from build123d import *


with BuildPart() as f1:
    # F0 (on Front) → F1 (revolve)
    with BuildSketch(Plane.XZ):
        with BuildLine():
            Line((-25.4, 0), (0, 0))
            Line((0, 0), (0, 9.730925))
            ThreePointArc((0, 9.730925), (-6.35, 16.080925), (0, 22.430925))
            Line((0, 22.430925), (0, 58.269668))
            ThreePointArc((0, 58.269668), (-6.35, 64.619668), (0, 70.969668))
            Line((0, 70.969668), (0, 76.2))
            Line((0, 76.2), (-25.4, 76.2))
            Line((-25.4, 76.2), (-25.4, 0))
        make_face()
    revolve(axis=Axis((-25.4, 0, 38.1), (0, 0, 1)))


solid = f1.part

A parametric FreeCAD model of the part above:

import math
import FreeCAD as App
import Part
import Sketcher

V = App.Vector
Q = App.Units.Quantity

doc = App.newDocument("Part")
body = doc.addObject("PartDesign::Body", "Body")

# Sketch on XZ plane
sketch1 = doc.addObject("Sketcher::SketchObject", "Sketch")
body.addObject(sketch1)
sketch1.AttachmentSupport = (doc.XZ_Plane, [""])
sketch1.MapMode = "FlatFace"
sketch1.addGeometry(Part.LineSegment(V(-25, 0, 0), V(0, 0, 0)), False)
sketch1.addGeometry(Part.LineSegment(V(0, 0, 0), V(0, 10, 0)), False)
sketch1.addGeometry(Part.ArcOfCircle(Part.Circle(V(0, 16, 0), V(0, 0, 1), 6), math.radians(90), math.radians(270)), False)
sketch1.addGeometry(Part.LineSegment(V(0, 22, 0), V(0, 58, 0)), False)
sketch1.addGeometry(Part.ArcOfCircle(Part.Circle(V(0, 65, 0), V(0, 0, 1), 6), math.radians(90), math.radians(270)), False)
sketch1.addGeometry(Part.LineSegment(V(0, 71, 0), V(0, 76, 0)), False)
sketch1.addGeometry(Part.LineSegment(V(0, 76, 0), V(-25, 76, 0)), False)
sketch1.addGeometry(Part.LineSegment(V(-25, 76, 0), V(-25, 0, 0)), False)
sketch1.addGeometry(Part.LineSegment(V(-25, 0, 0), V(-25, 76, 0)), True)  # axis
sketch1.addConstraint(Sketcher.Constraint("Coincident", 0, 2, 1, 1))
sketch1.addConstraint(Sketcher.Constraint("Coincident", 1, 2, 2, 2))
sketch1.addConstraint(Sketcher.Constraint("Coincident", 2, 1, 3, 1))
sketch1.addConstraint(Sketcher.Constraint("Coincident", 3, 2, 4, 2))
sketch1.addConstraint(Sketcher.Constraint("Coincident", 4, 1, 5, 1))
sketch1.addConstraint(Sketcher.Constraint("Coincident", 5, 2, 6, 1))
sketch1.addConstraint(Sketcher.Constraint("Coincident", 6, 2, 7, 1))
sketch1.addConstraint(Sketcher.Constraint("Coincident", 7, 2, 0, 1))
sketch1.addConstraint(Sketcher.Constraint("Horizontal", 0))
sketch1.addConstraint(Sketcher.Constraint("Vertical", 1))
sketch1.addConstraint(Sketcher.Constraint("Vertical", 3))
sketch1.addConstraint(Sketcher.Constraint("Vertical", 5))
sketch1.addConstraint(Sketcher.Constraint("Horizontal", 6))
sketch1.addConstraint(Sketcher.Constraint("Vertical", 7))
sketch1.addConstraint(Sketcher.Constraint("Vertical", 8))
sketch1.addConstraint(Sketcher.Constraint("Coincident", 0, 2, -1, 1))
sketch1.addConstraint(Sketcher.Constraint("Coincident", 8, 1, 7, 2))
sketch1.addConstraint(Sketcher.Constraint("Equal", 2, 4))
sketch1.addConstraint(Sketcher.Constraint("PointOnObject", 2, 3, -2))
sketch1.addConstraint(Sketcher.Constraint("PointOnObject", 4, 3, -2))
sketch1.addConstraint(Sketcher.Constraint("PointOnObject", 2, 1, -2))
sketch1.addConstraint(Sketcher.Constraint("PointOnObject", 4, 1, -2))
sketch1.addConstraint(Sketcher.Constraint("Horizontal", 5, 2, 8, 2))
sketch1.addConstraint(Sketcher.Constraint("DistanceX", 0, 1, 0, 2, Q("1 in")))
sketch1.addConstraint(Sketcher.Constraint("DistanceY", 7, 2, 7, 1, Q("3 in")))
sketch1.addConstraint(Sketcher.Constraint("Radius", 2, Q("0.25 in")))
sketch1.addConstraint(Sketcher.Constraint("DistanceY", 1, 1, 1, 2, 9.730925))
sketch1.addConstraint(Sketcher.Constraint("DistanceY", 3, 1, 3, 2, 35.838743))
revolution = doc.addObject("PartDesign::Revolution", "Revolution")
body.addObject(revolution)
revolution.Profile = sketch1
revolution.ReferenceAxis = (sketch1, ["Axis0"])
revolution.Angle = 360

doc.recompute()
